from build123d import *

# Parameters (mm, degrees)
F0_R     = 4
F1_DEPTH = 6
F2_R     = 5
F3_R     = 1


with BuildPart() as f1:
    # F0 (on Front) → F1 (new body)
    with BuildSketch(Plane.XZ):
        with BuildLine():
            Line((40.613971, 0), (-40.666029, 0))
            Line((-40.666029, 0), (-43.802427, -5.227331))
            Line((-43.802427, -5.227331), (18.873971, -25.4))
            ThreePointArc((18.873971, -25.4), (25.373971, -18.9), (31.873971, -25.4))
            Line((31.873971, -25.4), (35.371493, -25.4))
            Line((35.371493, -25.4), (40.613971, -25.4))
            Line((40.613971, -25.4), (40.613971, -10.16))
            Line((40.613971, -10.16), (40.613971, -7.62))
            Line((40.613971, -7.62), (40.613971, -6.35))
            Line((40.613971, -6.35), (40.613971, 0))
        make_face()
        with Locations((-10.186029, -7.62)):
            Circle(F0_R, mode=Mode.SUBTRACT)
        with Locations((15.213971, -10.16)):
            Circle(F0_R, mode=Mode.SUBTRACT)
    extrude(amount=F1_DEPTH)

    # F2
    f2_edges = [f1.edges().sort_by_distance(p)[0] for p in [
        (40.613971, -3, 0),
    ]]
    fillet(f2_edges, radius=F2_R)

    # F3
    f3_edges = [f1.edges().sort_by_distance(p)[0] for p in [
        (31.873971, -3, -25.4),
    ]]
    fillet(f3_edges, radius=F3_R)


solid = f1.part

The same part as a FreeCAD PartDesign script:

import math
import FreeCAD as App
import Part
import Sketcher
from FreeCAD import Vector
Q = App.Units.Quantity


def edges_at(feature, points):
    """Names of the edges that pass closest to the given points."""
    edges = feature.Shape.Edges
    near = lambda p: min(range(len(edges)), key=lambda i: edges[i].distToShape(Part.Vertex(*p))[0])
    return sorted({f"Edge{near(p) + 1}" for p in points})

doc = App.newDocument("Part")
body = doc.addObject("PartDesign::Body", "Body")

sketch1 = doc.addObject("Sketcher::SketchObject", "Sketch")
body.addObject(sketch1)
sketch1.AttachmentSupport = (doc.XZ_Plane, [""])
sketch1.MapMode = "FlatFace"
sketch1.addGeometry([
    Part.LineSegment(Vector(40.6, 0, 0), Vector(-40.7, 0, 0)),
    Part.LineSegment(Vector(-40.7, 0, 0), Vector(-43.8, -5.2, 0)),
    Part.LineSegment(Vector(-43.8, -5.2, 0), Vector(18.9, -25.4, 0)),
    Part.ArcOfCircle(Part.Circle(Vector(25.4, -25.4, 0), Vector(0, 0, 1), 6.5), math.radians(0), math.radians(180)),
    Part.LineSegment(Vector(31.9, -25.4, 0), Vector(40.6, -25.4, 0)),
    Part.LineSegment(Vector(40.6, -25.4, 0), Vector(40.6, 0, 0)),
    Part.Circle(Vector(15.2, -10.2, 0), Vector(0, 0, 1), 4),
    Part.Circle(Vector(-10.2, -7.6, 0), Vector(0, 0, 1), 4),
], False)
sketch1.addConstraint([
    Sketcher.Constraint("Coincident", 0, 2, 1, 1),
    Sketcher.Constraint("Coincident", 1, 2, 2, 1),
    Sketcher.Constraint("Coincident", 2, 2, 3, 2),
    Sketcher.Constraint("Coincident", 3, 1, 4, 1),
    Sketcher.Constraint("Coincident", 4, 2, 5, 1),
    Sketcher.Constraint("Coincident", 5, 2, 0, 1),
    Sketcher.Constraint("Horizontal", 0),
    Sketcher.Constraint("Horizontal", 4),
    Sketcher.Constraint("Vertical", 5),
    Sketcher.Constraint("Equal", 6, 7),
    Sketcher.Constraint("PointOnObject", 0, 2, -1),
    Sketcher.Constraint("Horizontal", 3, 3, 2, 2),
    Sketcher.Constraint("Horizontal", 2, 2, 3, 1),
    Sketcher.Constraint("Diameter", 6, Q("8 mm")),
    Sketcher.Constraint("Radius", 3, Q("6.5 mm")),
    Sketcher.Constraint("DistanceY", 5, 1, 5, 2, Q("25.4 mm")),
    Sketcher.Constraint("DistanceX", 0, 2, 0, 1, Q("81.28 mm")),
    Sketcher.Constraint("DistanceX", 4, 1, 4, 2, Q("8.74 mm")),
    Sketcher.Constraint("DistanceX", 7, 3, 6, 3, Q("25.4 mm")),
    Sketcher.Constraint("DistanceX", 6, 3, 4, 2, Q("25.4 mm")),
    Sketcher.Constraint("DistanceY", 6, 3, -1, 1, Q("10.16 mm")),
    Sketcher.Constraint("DistanceY", 7, 3, -1, 1, Q("7.62 mm")),
    Sketcher.Constraint("DistanceX", 1, 2, 7, 3, Q("33.616398 mm")),
    Sketcher.Constraint("DistanceX", -1, 1, 3, 3, Q("25.373971 mm")),
    Sketcher.Constraint("DistanceY", 1, 2, -1, 1, Q("5.227331 mm")),
])
pad1 = doc.addObject("PartDesign::Pad", "Pad")
body.addObject(pad1)
pad1.Profile = sketch1
pad1.Length = 6
doc.recompute()

fillet = doc.addObject("PartDesign::Fillet", "Fillet")
body.addObject(fillet)
fillet.Base = (pad1, edges_at(pad1, [(40.614, -3, 0)]))
fillet.Radius = 5
doc.recompute()

fillet2 = doc.addObject("PartDesign::Fillet", "Fillet001")
body.addObject(fillet2)
fillet2.Base = (fillet, edges_at(fillet, [(31.874, -3, -25.4)]))
fillet2.Radius = 1

doc.recompute()
